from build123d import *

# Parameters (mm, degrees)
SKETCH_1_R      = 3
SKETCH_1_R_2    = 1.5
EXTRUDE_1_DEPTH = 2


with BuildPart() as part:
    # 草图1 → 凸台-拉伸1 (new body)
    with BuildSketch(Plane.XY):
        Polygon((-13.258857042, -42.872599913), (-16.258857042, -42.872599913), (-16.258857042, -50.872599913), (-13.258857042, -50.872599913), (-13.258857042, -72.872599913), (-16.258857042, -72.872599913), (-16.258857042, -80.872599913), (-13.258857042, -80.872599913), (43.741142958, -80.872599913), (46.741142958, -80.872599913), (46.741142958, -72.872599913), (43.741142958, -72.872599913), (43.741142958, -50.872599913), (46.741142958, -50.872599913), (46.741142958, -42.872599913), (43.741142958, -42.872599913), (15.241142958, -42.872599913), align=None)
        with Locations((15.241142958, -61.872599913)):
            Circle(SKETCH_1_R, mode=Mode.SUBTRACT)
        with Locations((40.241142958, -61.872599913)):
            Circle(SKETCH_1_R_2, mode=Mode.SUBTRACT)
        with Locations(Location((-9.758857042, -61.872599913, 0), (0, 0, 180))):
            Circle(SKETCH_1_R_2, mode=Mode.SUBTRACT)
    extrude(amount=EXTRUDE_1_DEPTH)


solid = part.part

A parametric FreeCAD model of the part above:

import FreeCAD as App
import Part
import Sketcher

V = App.Vector

doc = App.newDocument("Part")
params = doc.addObject("Spreadsheet::Sheet", "Params")
for row, (alias, value) in enumerate([
    ("sketch1_diameter", "3 mm"),
    ("sketch1_diameter2", "6 mm"),
    ("sketch1_width", "3 mm"),
    ("sketch1_width2", "63 mm"),
    ("sketch1_height", "8 mm"),
    ("pad1_length", "2 mm"),
], start=1):
    params.set(f"A{row}", alias)
    params.set(f"B{row}", "=" + value)
    params.setAlias(f"B{row}", alias)

body = doc.addObject("PartDesign::Body", "Body")

# Sketch on XY plane
sketch1 = body.newObject("Sketcher::SketchObject", "Sketch")
sketch1.AttachmentSupport = (doc.getObject("XY_Plane"), [""])
sketch1.MapMode = "FlatFace"
sketch1.addGeometry([
    Part.LineSegment(V(-16.3, -42.9, 0), V(-16.3, -50.9, 0)),  # 0
    Part.LineSegment(V(-16.3, -50.9, 0), V(-13.3, -50.9, 0)),  # 1
    Part.LineSegment(V(-13.3, -50.9, 0), V(-13.3, -72.9, 0)),  # 2
    Part.LineSegment(V(-13.3, -72.9, 0), V(-16.3, -72.9, 0)),  # 3
    Part.LineSegment(V(-16.3, -72.9, 0), V(-16.3, -80.9, 0)),  # 4
    Part.LineSegment(V(-16.3, -80.9, 0), V(46.7, -80.9, 0)),  # 5
    Part.LineSegment(V(46.7, -80.9, 0), V(46.7, -72.9, 0)),  # 6
    Part.LineSegment(V(46.7, -72.9, 0), V(43.7, -72.9, 0)),  # 7
    Part.LineSegment(V(43.7, -72.9, 0), V(43.7, -50.9, 0)),  # 8
    Part.LineSegment(V(43.7, -50.9, 0), V(46.7, -50.9, 0)),  # 9
    Part.LineSegment(V(46.7, -50.9, 0), V(46.7, -42.9, 0)),  # 10
    Part.LineSegment(V(46.7, -42.9, 0), V(-16.3, -42.9, 0)),  # 11
    Part.Circle(V(-9.8, -61.9, 0), V(0, 0, 1), 1.5),  # 12
    Part.Circle(V(15.2, -61.9, 0), V(0, 0, 1), 3),  # 13
    Part.Circle(V(40.2, -61.9, 0), V(0, 0, 1), 1.5),  # 14
], False)
sketch1.addConstraint([
    Sketcher.Constraint("Coincident", 0, 2, 1, 1),
    Sketcher.Constraint("Coincident", 1, 2, 2, 1),
    Sketcher.Constraint("Coincident", 2, 2, 3, 1),
    Sketcher.Constraint("Coincident", 3, 2, 4, 1),
    Sketcher.Constraint("Coincident", 4, 2, 5, 1),
    Sketcher.Constraint("Coincident", 5, 2, 6, 1),
    Sketcher.Constraint("Coincident", 6, 2, 7, 1),
    Sketcher.Constraint("Coincident", 7, 2, 8, 1),
    Sketcher.Constraint("Coincident", 8, 2, 9, 1),
    Sketcher.Constraint("Coincident", 9, 2, 10, 1),
    Sketcher.Constraint("Coincident", 10, 2, 11, 1),
    Sketcher.Constraint("Coincident", 11, 2, 0, 1),
    Sketcher.Constraint("Vertical", 0),
    Sketcher.Constraint("Horizontal", 1),
    Sketcher.Constraint("Vertical", 2),
    Sketcher.Constraint("Horizontal", 3),
    Sketcher.Constraint("Vertical", 4),
    Sketcher.Constraint("Horizontal", 5),
    Sketcher.Constraint("Vertical", 6),
    Sketcher.Constraint("Horizontal", 7),
    Sketcher.Constraint("Vertical", 8),
    Sketcher.Constraint("Horizontal", 9),
    Sketcher.Constraint("Vertical", 10),
    Sketcher.Constraint("Horizontal", 11),
    Sketcher.Constraint("Equal", 12, 14),
    Sketcher.Constraint("Horizontal", 12, 3, 13, 3),
    Sketcher.Constraint("Horizontal", 13, 3, 14, 3),
    Sketcher.Constraint("Horizontal", 3, 2, 6, 2),
    Sketcher.Constraint("Horizontal", 1, 2, 8, 2),
    Sketcher.Constraint("Vertical", 0, 2, 3, 2),
    Sketcher.Constraint("Vertical", 6, 2, 9, 2),
    Sketcher.Constraint("Equal", 3, 7),
    Sketcher.Constraint("Equal", 0, 4),
    Sketcher.Constraint("Diameter", 12, 3.0),
    Sketcher.Constraint("Diameter", 13, 6.0),
    Sketcher.Constraint("DistanceX", 1, 1, 1, 2, 3.0),
    Sketcher.Constraint("DistanceX", 5, 1, 5, 2, 63.0),
    Sketcher.Constraint("DistanceY", 0, 2, 0, 1, 8.0),
    Sketcher.Constraint("DistanceY", 2, 2, 2, 1, 22.0),
    Sketcher.Constraint("DistanceX", 12, 3, 13, 3, 25.0),
    Sketcher.Constraint("DistanceX", 13, 3, 14, 3, 25.0),
    Sketcher.Constraint("DistanceY", 12, 3, 0, 2, 11.0),
    Sketcher.Constraint("DistanceX", 0, 2, 12, 3, 6.5),
    Sketcher.Constraint("DistanceY", 12, 3, -1, 1, 61.8726),
    Sketcher.Constraint("DistanceX", 12, 3, -1, 1, 9.758857),
])
sketch1.setExpression("Constraints[33]", "Params.sketch1_diameter")
sketch1.setExpression("Constraints[34]", "Params.sketch1_diameter2")
sketch1.setExpression("Constraints[35]", "Params.sketch1_width")
sketch1.setExpression("Constraints[36]", "Params.sketch1_width2")
sketch1.setExpression("Constraints[37]", "Params.sketch1_height")
pad1 = body.newObject("PartDesign::Pad", "Pad")
pad1.Profile = sketch1
pad1.setExpression("Length", "Params.pad1_length")

doc.recompute()
